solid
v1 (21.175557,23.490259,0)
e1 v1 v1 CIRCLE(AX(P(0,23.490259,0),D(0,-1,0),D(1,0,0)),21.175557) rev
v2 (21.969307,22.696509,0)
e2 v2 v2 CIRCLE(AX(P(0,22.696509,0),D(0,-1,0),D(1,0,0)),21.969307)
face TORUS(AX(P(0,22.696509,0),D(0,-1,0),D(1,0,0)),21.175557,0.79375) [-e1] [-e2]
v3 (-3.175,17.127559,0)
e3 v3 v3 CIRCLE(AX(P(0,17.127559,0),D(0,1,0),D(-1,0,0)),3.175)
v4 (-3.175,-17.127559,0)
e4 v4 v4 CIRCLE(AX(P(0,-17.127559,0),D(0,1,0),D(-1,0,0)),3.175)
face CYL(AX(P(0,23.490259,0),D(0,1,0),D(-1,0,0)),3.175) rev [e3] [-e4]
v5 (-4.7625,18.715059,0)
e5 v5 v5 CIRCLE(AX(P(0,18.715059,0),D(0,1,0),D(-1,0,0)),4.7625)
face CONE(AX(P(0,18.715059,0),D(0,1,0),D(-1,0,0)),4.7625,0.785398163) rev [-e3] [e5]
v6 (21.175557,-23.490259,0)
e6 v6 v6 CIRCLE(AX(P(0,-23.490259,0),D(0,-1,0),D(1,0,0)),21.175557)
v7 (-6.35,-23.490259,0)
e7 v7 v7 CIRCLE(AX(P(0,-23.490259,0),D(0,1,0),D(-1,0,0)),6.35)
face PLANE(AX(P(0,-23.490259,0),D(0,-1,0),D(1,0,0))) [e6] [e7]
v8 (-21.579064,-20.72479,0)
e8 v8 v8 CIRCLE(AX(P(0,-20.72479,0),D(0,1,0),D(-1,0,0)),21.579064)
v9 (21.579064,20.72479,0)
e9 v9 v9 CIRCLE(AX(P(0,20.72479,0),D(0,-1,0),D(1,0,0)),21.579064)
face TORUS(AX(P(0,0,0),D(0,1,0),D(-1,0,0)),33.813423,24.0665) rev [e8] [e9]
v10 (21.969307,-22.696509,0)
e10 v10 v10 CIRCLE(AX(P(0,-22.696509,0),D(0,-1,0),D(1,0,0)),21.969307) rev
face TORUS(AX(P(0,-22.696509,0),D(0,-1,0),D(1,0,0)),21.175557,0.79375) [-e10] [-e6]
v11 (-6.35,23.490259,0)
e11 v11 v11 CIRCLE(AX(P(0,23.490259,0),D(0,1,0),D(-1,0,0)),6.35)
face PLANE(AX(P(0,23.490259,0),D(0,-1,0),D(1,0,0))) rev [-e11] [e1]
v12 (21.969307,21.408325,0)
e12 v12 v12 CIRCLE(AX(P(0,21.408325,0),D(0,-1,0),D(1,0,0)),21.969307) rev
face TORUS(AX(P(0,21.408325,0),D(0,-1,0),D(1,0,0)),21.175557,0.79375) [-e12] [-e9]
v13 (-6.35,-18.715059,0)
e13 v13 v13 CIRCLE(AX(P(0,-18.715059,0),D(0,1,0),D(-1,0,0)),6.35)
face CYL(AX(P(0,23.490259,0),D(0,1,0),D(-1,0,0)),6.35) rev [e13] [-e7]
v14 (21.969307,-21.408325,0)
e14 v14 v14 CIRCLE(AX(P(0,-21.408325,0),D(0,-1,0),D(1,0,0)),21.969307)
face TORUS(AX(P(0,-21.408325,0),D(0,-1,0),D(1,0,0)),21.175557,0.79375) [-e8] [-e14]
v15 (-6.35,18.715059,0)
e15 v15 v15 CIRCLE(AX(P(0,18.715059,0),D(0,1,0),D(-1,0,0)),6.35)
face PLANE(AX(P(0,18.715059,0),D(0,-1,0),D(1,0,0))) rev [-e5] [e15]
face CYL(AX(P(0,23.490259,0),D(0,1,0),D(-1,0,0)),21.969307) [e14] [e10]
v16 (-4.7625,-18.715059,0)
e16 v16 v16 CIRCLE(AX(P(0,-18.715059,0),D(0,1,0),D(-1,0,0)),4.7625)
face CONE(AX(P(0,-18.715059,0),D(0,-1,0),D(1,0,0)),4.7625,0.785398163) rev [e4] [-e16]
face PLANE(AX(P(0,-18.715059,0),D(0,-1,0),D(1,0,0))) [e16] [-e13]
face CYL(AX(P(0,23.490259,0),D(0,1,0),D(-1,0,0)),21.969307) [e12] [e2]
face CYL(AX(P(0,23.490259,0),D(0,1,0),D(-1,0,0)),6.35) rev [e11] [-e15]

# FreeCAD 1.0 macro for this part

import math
import FreeCAD as App
import Part
import Sketcher

V = App.Vector
Q = App.Units.Quantity


def edges_at(feature, points):
    """Names of the edges that pass closest to the given points."""
    edges = feature.Shape.Edges
    near = lambda p: min(range(len(edges)), key=lambda i: edges[i].distToShape(Part.Vertex(*p))[0])
    return sorted({f"Edge{near(p) + 1}" for p in points})

doc = App.newDocument("Part")
params = doc.addObject("Spreadsheet::Sheet", "Params")
for row, (alias, value) in enumerate([
    ("sketch1_height", "0.1 in"),
    ("sketch1_width", "0.0625 in"),
    ("sketch1_height2", "0.188 in"),
    ("revolution_angle", "360 deg"),
    ("fillet_radius", "0.03125 in"),
], start=1):
    params.set(f"A{row}", alias)
    params.set(f"B{row}", "=" + value)
    params.setAlias(f"B{row}", alias)

body = doc.addObject("PartDesign::Body", "Body")

sketch1 = body.newObject("Sketcher::SketchObject", "Sketch")
sketch1.AttachmentSupport = (doc.getObject("XY_Plane"), [""])
sketch1.MapMode = "FlatFace"
sketch1.addGeometry([
    Part.LineSegment(V(-6.3, 23.5, 0), V(-22, 23.5, 0)),
    Part.LineSegment(V(-22, 23.5, 0), V(-22, 21, 0)),
    Part.ArcOfCircle(Part.Circle(V(-33.8, 0, 0), V(0, 0, 1), 24.1), math.radians(0), math.radians(61)),
    Part.ArcOfCircle(Part.Circle(V(-33.8, 0, 0), V(0, 0, 1), 24.1), math.radians(-61), math.radians(0)),
    Part.LineSegment(V(-22, -21, 0), V(-22, -23.5, 0)),
    Part.LineSegment(V(-22, -23.5, 0), V(-6.3, -23.5, 0)),
    Part.LineSegment(V(-6.3, -23.5, 0), V(-6.3, -18.7, 0)),
    Part.LineSegment(V(-6.3, -18.7, 0), V(-4.8, -18.7, 0)),
    Part.LineSegment(V(-4.8, -18.7, 0), V(-3.2, -17.1, 0)),
    Part.LineSegment(V(-3.2, -17.1, 0), V(-3.2, 17.1, 0)),
    Part.LineSegment(V(-3.2, 17.1, 0), V(-4.8, 18.7, 0)),
    Part.LineSegment(V(-4.8, 18.7, 0), V(-6.3, 18.7, 0)),
    Part.LineSegment(V(-6.3, 18.7, 0), V(-6.3, 23.5, 0)),
], False)
sketch1.addConstraint([
    Sketcher.Constraint("Coincident", 0, 2, 1, 1),
    Sketcher.Constraint("Coincident", 1, 2, 2, 2),
    Sketcher.Constraint("Tangent", 2, 1, 3, 2),
    Sketcher.Constraint("Coincident", 3, 1, 4, 1),
    Sketcher.Constraint("Coincident", 4, 2, 5, 1),
    Sketcher.Constraint("Coincident", 5, 2, 6, 1),
    Sketcher.Constraint("Coincident", 6, 2, 7, 1),
    Sketcher.Constraint("Coincident", 7, 2, 8, 1),
    Sketcher.Constraint("Coincident", 8, 2, 9, 1),
    Sketcher.Constraint("Coincident", 9, 2, 10, 1),
    Sketcher.Constraint("Coincident", 10, 2, 11, 1),
    Sketcher.Constraint("Coincident", 11, 2, 12, 1),
    Sketcher.Constraint("Coincident", 12, 2, 0, 1),
    Sketcher.Constraint("Horizontal", 0),
    Sketcher.Constraint("Vertical", 1),
    Sketcher.Constraint("Vertical", 4),
    Sketcher.Constraint("Horizontal", 5),
    Sketcher.Constraint("Vertical", 6),
    Sketcher.Constraint("Horizontal", 7),
    Sketcher.Constraint("Vertical", 9),
    Sketcher.Constraint("Horizontal", 11),
    Sketcher.Constraint("Vertical", 12),
    Sketcher.Constraint("Equal", 2, 3),
    Sketcher.Constraint("Symmetric", 1, 2, 3, 1, -1),
    Sketcher.Constraint("Symmetric", 7, 2, 10, 2, -1),
    Sketcher.Constraint("Symmetric", 5, 2, 12, 2, -1),
    Sketcher.Constraint("PointOnObject", 2, 1, -1),
    Sketcher.Constraint("Perpendicular", 8, 10),
    Sketcher.Constraint("Equal", 8, 10),
    Sketcher.Constraint("DistanceY", 1, 2, 1, 1, Q("0.1 in")),
    Sketcher.Constraint("Radius", 2, Q("0.9475 in")),
    Sketcher.Constraint("DistanceX", 7, 1, 7, 2, Q("0.0625 in")),
    Sketcher.Constraint("DistanceY", 6, 1, 6, 2, Q("0.188 in")),
    Sketcher.Constraint("DistanceX", 5, 2, -1, 1, Q("0.25 in")),
    Sketcher.Constraint("DistanceX", 8, 2, -1, 1, Q("0.125 in")),
    Sketcher.Constraint("DistanceX", 0, 2, 0, 1, Q("15.619307 mm")),
    Sketcher.Constraint("DistanceY", 9, 1, 9, 2, Q("34.255117 mm")),
])
sketch1.setExpression("Constraints[29]", "Params.sketch1_height")
sketch1.setExpression("Constraints[31]", "Params.sketch1_width")
sketch1.setExpression("Constraints[32]", "Params.sketch1_height2")
revolution = body.newObject("PartDesign::Revolution", "Revolution")
revolution.Profile = sketch1
revolution.ReferenceAxis = (sketch1, ["V_Axis"])
revolution.setExpression("Angle", "Params.revolution_angle")
doc.recompute()

fillet = body.newObject("PartDesign::Fillet", "Fillet")
fillet.Base = (revolution, edges_at(revolution, [
    (21.969, 20.95, 0),
    (21.969, 23.49, 0),
    (21.969, -23.49, 0),
    (21.969, -20.95, 0),
]))
fillet.setExpression("Radius", "Params.fillet_radius")

doc.recompute()
